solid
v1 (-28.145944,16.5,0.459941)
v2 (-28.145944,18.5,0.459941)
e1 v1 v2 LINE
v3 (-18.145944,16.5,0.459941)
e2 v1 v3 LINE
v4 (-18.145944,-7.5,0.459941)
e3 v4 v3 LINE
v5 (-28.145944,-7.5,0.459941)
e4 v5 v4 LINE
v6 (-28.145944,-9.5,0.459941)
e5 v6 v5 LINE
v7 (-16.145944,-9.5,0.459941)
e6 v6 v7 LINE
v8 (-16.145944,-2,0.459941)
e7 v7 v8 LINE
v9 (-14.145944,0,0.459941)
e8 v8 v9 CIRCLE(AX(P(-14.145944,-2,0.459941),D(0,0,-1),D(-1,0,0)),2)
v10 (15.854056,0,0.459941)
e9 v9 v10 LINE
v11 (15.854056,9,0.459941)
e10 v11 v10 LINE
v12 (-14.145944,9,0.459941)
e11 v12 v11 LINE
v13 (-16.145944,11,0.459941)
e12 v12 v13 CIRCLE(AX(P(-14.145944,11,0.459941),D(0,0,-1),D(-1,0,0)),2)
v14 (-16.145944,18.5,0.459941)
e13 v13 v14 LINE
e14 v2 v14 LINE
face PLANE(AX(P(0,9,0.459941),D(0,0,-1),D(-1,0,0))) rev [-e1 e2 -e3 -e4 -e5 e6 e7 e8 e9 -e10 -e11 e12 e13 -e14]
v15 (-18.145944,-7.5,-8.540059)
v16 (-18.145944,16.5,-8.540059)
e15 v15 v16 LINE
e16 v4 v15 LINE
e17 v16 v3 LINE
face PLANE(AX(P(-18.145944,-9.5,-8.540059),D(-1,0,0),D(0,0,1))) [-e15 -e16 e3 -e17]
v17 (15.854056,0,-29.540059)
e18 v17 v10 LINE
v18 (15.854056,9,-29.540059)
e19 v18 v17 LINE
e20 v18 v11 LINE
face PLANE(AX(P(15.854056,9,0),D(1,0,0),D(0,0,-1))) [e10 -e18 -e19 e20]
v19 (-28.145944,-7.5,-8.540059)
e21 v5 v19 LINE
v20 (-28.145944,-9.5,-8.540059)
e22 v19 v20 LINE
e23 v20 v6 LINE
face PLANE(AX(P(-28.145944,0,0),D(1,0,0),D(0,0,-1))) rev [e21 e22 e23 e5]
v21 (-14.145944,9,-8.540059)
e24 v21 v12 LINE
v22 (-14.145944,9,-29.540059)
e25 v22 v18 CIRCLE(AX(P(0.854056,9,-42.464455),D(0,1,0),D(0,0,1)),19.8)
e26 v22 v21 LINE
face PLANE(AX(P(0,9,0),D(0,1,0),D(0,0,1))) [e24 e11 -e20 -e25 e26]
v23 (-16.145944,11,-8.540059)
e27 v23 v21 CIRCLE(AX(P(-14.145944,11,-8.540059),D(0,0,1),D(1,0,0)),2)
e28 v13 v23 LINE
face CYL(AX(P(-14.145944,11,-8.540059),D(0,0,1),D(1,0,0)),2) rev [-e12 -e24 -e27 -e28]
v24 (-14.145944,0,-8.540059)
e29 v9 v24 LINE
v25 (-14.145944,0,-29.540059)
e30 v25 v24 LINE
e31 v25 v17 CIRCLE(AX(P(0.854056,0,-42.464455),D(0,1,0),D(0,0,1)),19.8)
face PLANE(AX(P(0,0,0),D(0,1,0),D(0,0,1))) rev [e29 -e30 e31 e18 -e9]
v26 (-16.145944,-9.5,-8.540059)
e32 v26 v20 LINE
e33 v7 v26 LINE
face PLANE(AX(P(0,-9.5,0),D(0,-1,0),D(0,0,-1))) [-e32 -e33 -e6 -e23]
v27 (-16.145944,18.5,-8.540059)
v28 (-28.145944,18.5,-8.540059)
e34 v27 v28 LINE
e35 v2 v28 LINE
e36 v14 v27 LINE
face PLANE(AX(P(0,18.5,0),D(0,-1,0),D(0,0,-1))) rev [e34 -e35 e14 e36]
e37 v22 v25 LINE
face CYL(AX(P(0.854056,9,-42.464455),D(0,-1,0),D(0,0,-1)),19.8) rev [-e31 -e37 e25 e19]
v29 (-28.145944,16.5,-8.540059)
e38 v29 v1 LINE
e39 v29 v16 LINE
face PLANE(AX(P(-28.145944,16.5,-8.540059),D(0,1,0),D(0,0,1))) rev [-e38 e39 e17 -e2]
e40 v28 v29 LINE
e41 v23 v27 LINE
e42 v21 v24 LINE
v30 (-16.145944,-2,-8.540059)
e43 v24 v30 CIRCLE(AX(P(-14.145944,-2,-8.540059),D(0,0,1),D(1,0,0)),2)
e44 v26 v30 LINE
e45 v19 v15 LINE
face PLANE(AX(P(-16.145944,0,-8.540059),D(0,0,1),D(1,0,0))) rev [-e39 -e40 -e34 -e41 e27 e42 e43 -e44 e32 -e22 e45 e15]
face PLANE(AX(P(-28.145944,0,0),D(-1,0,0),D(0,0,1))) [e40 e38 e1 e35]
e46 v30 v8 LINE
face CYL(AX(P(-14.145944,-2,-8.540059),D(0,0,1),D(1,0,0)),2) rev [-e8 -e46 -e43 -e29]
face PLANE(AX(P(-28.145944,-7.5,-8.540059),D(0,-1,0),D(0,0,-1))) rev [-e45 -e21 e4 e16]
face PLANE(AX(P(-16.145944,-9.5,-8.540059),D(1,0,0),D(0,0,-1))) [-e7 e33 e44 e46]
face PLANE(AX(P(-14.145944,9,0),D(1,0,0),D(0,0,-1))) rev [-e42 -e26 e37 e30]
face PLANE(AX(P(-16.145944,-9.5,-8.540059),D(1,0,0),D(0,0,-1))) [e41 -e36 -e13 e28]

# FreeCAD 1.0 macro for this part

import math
import FreeCAD as App
import Part
import Sketcher
Q = App.Units.Quantity


def edges_at(feature, points):
    """Names of the edges that pass closest to the given points."""
    edges = feature.Shape.Edges
    near = lambda p: min(range(len(edges)), key=lambda i: edges[i].distToShape(Part.Vertex(*p))[0])
    return sorted({f"Edge{near(p) + 1}" for p in points})

doc = App.newDocument("Part")
params = doc.addObject("Spreadsheet::Sheet", "Params")
for row, (alias, value) in enumerate([
    ("sketch1_radius", "19.8 mm"),
    ("sketch1_width", "30 mm"),
    ("pad1_length", "9 mm"),
    ("sketch2_width", "9 mm"),
    ("pad2_length", "2 mm"),
    ("sketch3_width", "2 mm"),
    ("sketch3_height", "9 mm"),
    ("pad3_length", "9.5 mm"),
    ("pad3_length2", "18.5 mm"),
    ("sketch4_width", "2 mm"),
    ("sketch4_height", "9 mm"),
    ("pad4_length", "10 mm"),
    ("fillet_radius", "2 mm"),
], start=1):
    params.set(f"A{row}", alias)
    params.set(f"B{row}", "=" + value)
    params.setAlias(f"B{row}", alias)

body = doc.addObject("PartDesign::Body", "Body")

sketch1 = body.newObject("Sketcher::SketchObject", "Sketch")
sketch1.AttachmentSupport = (doc.getObject("XZ_Plane"), [""])
sketch1.MapMode = "FlatFace"
sketch1.addGeometry(Part.ArcOfCircle(Part.Circle(App.Vector(1, -42, 0), App.Vector(0, 0, 1), 20), math.radians(41), math.radians(139)), False)
sketch1.addGeometry(Part.LineSegment(App.Vector(-14, -30, 0), App.Vector(-14, 0, 0)), False)
sketch1.addGeometry(Part.LineSegment(App.Vector(-14, 0, 0), App.Vector(16, 0, 0)), False)
sketch1.addGeometry(Part.LineSegment(App.Vector(16, 0, 0), App.Vector(16, -30, 0)), False)
sketch1.addConstraint(Sketcher.Constraint("Coincident", 0, 2, 1, 1))
sketch1.addConstraint(Sketcher.Constraint("Coincident", 1, 2, 2, 1))
sketch1.addConstraint(Sketcher.Constraint("Coincident", 2, 2, 3, 1))
sketch1.addConstraint(Sketcher.Constraint("Coincident", 3, 2, 0, 1))
sketch1.addConstraint(Sketcher.Constraint("Vertical", 1))
sketch1.addConstraint(Sketcher.Constraint("Horizontal", 2))
sketch1.addConstraint(Sketcher.Constraint("Vertical", 3))
sketch1.addConstraint(Sketcher.Constraint("Horizontal", 0, 2, 3, 2))
sketch1.addConstraint(Sketcher.Constraint("Equal", 2, 1))
sketch1.addConstraint(Sketcher.Constraint("Radius", 0, Q("19.8 mm")))
sketch1.addConstraint(Sketcher.Constraint("DistanceX", 2, 1, 2, 2, Q("30 mm")))
sketch1.addConstraint(Sketcher.Constraint("DistanceY", 0, 2, -1, 1, Q("29.540059 mm")))
sketch1.addConstraint(Sketcher.Constraint("DistanceX", -1, 1, 0, 3, Q("0.854056 mm")))
sketch1.setExpression("Constraints[9]", "Params.sketch1_radius")
sketch1.setExpression("Constraints[10]", "Params.sketch1_width")
pad1 = body.newObject("PartDesign::Pad", "Pad")
pad1.Profile = sketch1
pad1.setExpression("Length", "Params.pad1_length")
pad1.Reversed = True

sketch2 = body.newObject("Sketcher::SketchObject", "Sketch001")
sketch2.AttachmentSupport = (doc.getObject("YZ_Plane"), [""])
sketch2.MapMode = "FlatFace"
sketch2.AttachmentOffset = App.Placement(App.Vector(0, 0, -14.145944), App.Rotation())
sketch2.addGeometry(Part.LineSegment(App.Vector(9, -9, 0), App.Vector(0, -9, 0)), False)
sketch2.addGeometry(Part.LineSegment(App.Vector(0, -9, 0), App.Vector(0, 0, 0)), False)
sketch2.addGeometry(Part.LineSegment(App.Vector(0, 0, 0), App.Vector(9, 0, 0)), False)
sketch2.addGeometry(Part.LineSegment(App.Vector(9, 0, 0), App.Vector(9, -9, 0)), False)
sketch2.addConstraint(Sketcher.Constraint("Coincident", 0, 2, 1, 1))
sketch2.addConstraint(Sketcher.Constraint("Coincident", 1, 2, 2, 1))
sketch2.addConstraint(Sketcher.Constraint("Coincident", 2, 2, 3, 1))
sketch2.addConstraint(Sketcher.Constraint("Coincident", 3, 2, 0, 1))
sketch2.addConstraint(Sketcher.Constraint("Horizontal", 0))
sketch2.addConstraint(Sketcher.Constraint("Vertical", 1))
sketch2.addConstraint(Sketcher.Constraint("Horizontal", 2))
sketch2.addConstraint(Sketcher.Constraint("Vertical", 3))
sketch2.addConstraint(Sketcher.Constraint("PointOnObject", 0, 2, -2))
sketch2.addConstraint(Sketcher.Constraint("Equal", 2, 1))
sketch2.addConstraint(Sketcher.Constraint("DistanceX", 0, 2, 0, 1, Q("9 mm")))
sketch2.addConstraint(Sketcher.Constraint("DistanceY", 0, 2, -1, 1, Q("8.540059 mm")))
sketch2.setExpression("Constraints[10]", "Params.sketch2_width")
pad2 = body.newObject("PartDesign::Pad", "Pad001")
pad2.Profile = sketch2
pad2.setExpression("Length", "Params.pad2_length")
pad2.Reversed = True

sketch3 = body.newObject("Sketcher::SketchObject", "Sketch002")
sketch3.AttachmentSupport = (doc.getObject("XZ_Plane"), [""])
sketch3.MapMode = "FlatFace"
sketch3.AttachmentOffset = App.Placement(App.Vector(0, 0, -9), App.Rotation())
sketch3.addGeometry(Part.LineSegment(App.Vector(-18.1, -8.5, 0), App.Vector(-18.1, 0.5, 0)), False)
sketch3.addGeometry(Part.LineSegment(App.Vector(-18.1, 0.5, 0), App.Vector(-16.1, 0.5, 0)), False)
sketch3.addGeometry(Part.LineSegment(App.Vector(-16.1, 0.5, 0), App.Vector(-16.1, -8.5, 0)), False)
sketch3.addGeometry(Part.LineSegment(App.Vector(-16.1, -8.5, 0), App.Vector(-18.1, -8.5, 0)), False)
sketch3.addConstraint(Sketcher.Constraint("Coincident", 0, 2, 1, 1))
sketch3.addConstraint(Sketcher.Constraint("Coincident", 1, 2, 2, 1))
sketch3.addConstraint(Sketcher.Constraint("Coincident", 2, 2, 3, 1))
sketch3.addConstraint(Sketcher.Constraint("Coincident", 3, 2, 0, 1))
sketch3.addConstraint(Sketcher.Constraint("Vertical", 0))
sketch3.addConstraint(Sketcher.Constraint("Horizontal", 1))
sketch3.addConstraint(Sketcher.Constraint("Vertical", 2))
sketch3.addConstraint(Sketcher.Constraint("Horizontal", 3))
sketch3.addConstraint(Sketcher.Constraint("DistanceX", 1, 1, 1, 2, Q("2 mm")))
sketch3.addConstraint(Sketcher.Constraint("DistanceY", 0, 1, 0, 2, Q("9 mm")))
sketch3.addConstraint(Sketcher.Constraint("DistanceY", -1, 1, 0, 2, Q("0.459941 mm")))
sketch3.addConstraint(Sketcher.Constraint("DistanceX", 0, 2, -1, 1, Q("18.145944 mm")))
sketch3.setExpression("Constraints[8]", "Params.sketch3_width")
sketch3.setExpression("Constraints[9]", "Params.sketch3_height")
pad3 = body.newObject("PartDesign::Pad", "Pad002")
pad3.Profile = sketch3
pad3.Type = "TwoLengths"
pad3.setExpression("Length", "Params.pad3_length")
pad3.setExpression("Length2", "Params.pad3_length2")
pad3.Reversed = True

sketch4 = body.newObject("Sketcher::SketchObject", "Sketch003")
sketch4.AttachmentSupport = (doc.getObject("YZ_Plane"), [""])
sketch4.MapMode = "FlatFace"
sketch4.AttachmentOffset = App.Placement(App.Vector(0, 0, -18.145944), App.Rotation())
sketch4.addGeometry(Part.LineSegment(App.Vector(18.5, -8.5, 0), App.Vector(16.5, -8.5, 0)), False)
sketch4.addGeometry(Part.LineSegment(App.Vector(16.5, -8.5, 0), App.Vector(16.5, 0.5, 0)), False)
sketch4.addGeometry(Part.LineSegment(App.Vector(16.5, 0.5, 0), App.Vector(18.5, 0.5, 0)), False)
sketch4.addGeometry(Part.LineSegment(App.Vector(18.5, 0.5, 0), App.Vector(18.5, -8.5, 0)), False)
sketch4.addGeometry(Part.LineSegment(App.Vector(-7.5, -8.5, 0), App.Vector(-9.5, -8.5, 0)), False)
sketch4.addGeometry(Part.LineSegment(App.Vector(-9.5, -8.5, 0), App.Vector(-9.5, 0.5, 0)), False)
sketch4.addGeometry(Part.LineSegment(App.Vector(-9.5, 0.5, 0), App.Vector(-7.5, 0.5, 0)), False)
sketch4.addGeometry(Part.LineSegment(App.Vector(-7.5, 0.5, 0), App.Vector(-7.5, -8.5, 0)), False)
sketch4.addConstraint(Sketcher.Constraint("Coincident", 0, 2, 1, 1))
sketch4.addConstraint(Sketcher.Constraint("Coincident", 1, 2, 2, 1))
sketch4.addConstraint(Sketcher.Constraint("Coincident", 2, 2, 3, 1))
sketch4.addConstraint(Sketcher.Constraint("Coincident", 3, 2, 0, 1))
sketch4.addConstraint(Sketcher.Constraint("Coincident", 4, 2, 5, 1))
sketch4.addConstraint(Sketcher.Constraint("Coincident", 5, 2, 6, 1))
sketch4.addConstraint(Sketcher.Constraint("Coincident", 6, 2, 7, 1))
sketch4.addConstraint(Sketcher.Constraint("Coincident", 7, 2, 4, 1))
sketch4.addConstraint(Sketcher.Constraint("Horizontal", 0))
sketch4.addConstraint(Sketcher.Constraint("Vertical", 1))
sketch4.addConstraint(Sketcher.Constraint("Horizontal", 2))
sketch4.addConstraint(Sketcher.Constraint("Vertical", 3))
sketch4.addConstraint(Sketcher.Constraint("Horizontal", 4))
sketch4.addConstraint(Sketcher.Constraint("Vertical", 5))
sketch4.addConstraint(Sketcher.Constraint("Horizontal", 6))
sketch4.addConstraint(Sketcher.Constraint("Vertical", 7))
sketch4.addConstraint(Sketcher.Constraint("Horizontal", 3, 2, 4, 2))
sketch4.addConstraint(Sketcher.Constraint("Horizontal", 2, 2, 5, 2))
sketch4.addConstraint(Sketcher.Constraint("Equal", 2, 4))
sketch4.addConstraint(Sketcher.Constraint("DistanceX", 0, 2, 0, 1, Q("2 mm")))
sketch4.addConstraint(Sketcher.Constraint("DistanceY", 1, 1, 1, 2, Q("9 mm")))
sketch4.addConstraint(Sketcher.Constraint("DistanceX", 4, 2, 0, 2, Q("26 mm")))
sketch4.addConstraint(Sketcher.Constraint("DistanceX", -1, 1, 0, 2, Q("16.5 mm")))
sketch4.addConstraint(Sketcher.Constraint("DistanceY", 0, 2, -1, 1, Q("8.540059 mm")))
sketch4.setExpression("Constraints[19]", "Params.sketch4_width")
sketch4.setExpression("Constraints[20]", "Params.sketch4_height")
pad4 = body.newObject("PartDesign::Pad", "Pad003")
pad4.Profile = sketch4
pad4.setExpression("Length", "Params.pad4_length")
pad4.Reversed = True
doc.recompute()

fillet = body.newObject("PartDesign::Fillet", "Fillet")
fillet.Base = (pad4, edges_at(pad4, [(-16.146, 0, -4.04), (-16.146, 9, -4.04)]))
fillet.setExpression("Radius", "Params.fillet_radius")

doc.recompute()
